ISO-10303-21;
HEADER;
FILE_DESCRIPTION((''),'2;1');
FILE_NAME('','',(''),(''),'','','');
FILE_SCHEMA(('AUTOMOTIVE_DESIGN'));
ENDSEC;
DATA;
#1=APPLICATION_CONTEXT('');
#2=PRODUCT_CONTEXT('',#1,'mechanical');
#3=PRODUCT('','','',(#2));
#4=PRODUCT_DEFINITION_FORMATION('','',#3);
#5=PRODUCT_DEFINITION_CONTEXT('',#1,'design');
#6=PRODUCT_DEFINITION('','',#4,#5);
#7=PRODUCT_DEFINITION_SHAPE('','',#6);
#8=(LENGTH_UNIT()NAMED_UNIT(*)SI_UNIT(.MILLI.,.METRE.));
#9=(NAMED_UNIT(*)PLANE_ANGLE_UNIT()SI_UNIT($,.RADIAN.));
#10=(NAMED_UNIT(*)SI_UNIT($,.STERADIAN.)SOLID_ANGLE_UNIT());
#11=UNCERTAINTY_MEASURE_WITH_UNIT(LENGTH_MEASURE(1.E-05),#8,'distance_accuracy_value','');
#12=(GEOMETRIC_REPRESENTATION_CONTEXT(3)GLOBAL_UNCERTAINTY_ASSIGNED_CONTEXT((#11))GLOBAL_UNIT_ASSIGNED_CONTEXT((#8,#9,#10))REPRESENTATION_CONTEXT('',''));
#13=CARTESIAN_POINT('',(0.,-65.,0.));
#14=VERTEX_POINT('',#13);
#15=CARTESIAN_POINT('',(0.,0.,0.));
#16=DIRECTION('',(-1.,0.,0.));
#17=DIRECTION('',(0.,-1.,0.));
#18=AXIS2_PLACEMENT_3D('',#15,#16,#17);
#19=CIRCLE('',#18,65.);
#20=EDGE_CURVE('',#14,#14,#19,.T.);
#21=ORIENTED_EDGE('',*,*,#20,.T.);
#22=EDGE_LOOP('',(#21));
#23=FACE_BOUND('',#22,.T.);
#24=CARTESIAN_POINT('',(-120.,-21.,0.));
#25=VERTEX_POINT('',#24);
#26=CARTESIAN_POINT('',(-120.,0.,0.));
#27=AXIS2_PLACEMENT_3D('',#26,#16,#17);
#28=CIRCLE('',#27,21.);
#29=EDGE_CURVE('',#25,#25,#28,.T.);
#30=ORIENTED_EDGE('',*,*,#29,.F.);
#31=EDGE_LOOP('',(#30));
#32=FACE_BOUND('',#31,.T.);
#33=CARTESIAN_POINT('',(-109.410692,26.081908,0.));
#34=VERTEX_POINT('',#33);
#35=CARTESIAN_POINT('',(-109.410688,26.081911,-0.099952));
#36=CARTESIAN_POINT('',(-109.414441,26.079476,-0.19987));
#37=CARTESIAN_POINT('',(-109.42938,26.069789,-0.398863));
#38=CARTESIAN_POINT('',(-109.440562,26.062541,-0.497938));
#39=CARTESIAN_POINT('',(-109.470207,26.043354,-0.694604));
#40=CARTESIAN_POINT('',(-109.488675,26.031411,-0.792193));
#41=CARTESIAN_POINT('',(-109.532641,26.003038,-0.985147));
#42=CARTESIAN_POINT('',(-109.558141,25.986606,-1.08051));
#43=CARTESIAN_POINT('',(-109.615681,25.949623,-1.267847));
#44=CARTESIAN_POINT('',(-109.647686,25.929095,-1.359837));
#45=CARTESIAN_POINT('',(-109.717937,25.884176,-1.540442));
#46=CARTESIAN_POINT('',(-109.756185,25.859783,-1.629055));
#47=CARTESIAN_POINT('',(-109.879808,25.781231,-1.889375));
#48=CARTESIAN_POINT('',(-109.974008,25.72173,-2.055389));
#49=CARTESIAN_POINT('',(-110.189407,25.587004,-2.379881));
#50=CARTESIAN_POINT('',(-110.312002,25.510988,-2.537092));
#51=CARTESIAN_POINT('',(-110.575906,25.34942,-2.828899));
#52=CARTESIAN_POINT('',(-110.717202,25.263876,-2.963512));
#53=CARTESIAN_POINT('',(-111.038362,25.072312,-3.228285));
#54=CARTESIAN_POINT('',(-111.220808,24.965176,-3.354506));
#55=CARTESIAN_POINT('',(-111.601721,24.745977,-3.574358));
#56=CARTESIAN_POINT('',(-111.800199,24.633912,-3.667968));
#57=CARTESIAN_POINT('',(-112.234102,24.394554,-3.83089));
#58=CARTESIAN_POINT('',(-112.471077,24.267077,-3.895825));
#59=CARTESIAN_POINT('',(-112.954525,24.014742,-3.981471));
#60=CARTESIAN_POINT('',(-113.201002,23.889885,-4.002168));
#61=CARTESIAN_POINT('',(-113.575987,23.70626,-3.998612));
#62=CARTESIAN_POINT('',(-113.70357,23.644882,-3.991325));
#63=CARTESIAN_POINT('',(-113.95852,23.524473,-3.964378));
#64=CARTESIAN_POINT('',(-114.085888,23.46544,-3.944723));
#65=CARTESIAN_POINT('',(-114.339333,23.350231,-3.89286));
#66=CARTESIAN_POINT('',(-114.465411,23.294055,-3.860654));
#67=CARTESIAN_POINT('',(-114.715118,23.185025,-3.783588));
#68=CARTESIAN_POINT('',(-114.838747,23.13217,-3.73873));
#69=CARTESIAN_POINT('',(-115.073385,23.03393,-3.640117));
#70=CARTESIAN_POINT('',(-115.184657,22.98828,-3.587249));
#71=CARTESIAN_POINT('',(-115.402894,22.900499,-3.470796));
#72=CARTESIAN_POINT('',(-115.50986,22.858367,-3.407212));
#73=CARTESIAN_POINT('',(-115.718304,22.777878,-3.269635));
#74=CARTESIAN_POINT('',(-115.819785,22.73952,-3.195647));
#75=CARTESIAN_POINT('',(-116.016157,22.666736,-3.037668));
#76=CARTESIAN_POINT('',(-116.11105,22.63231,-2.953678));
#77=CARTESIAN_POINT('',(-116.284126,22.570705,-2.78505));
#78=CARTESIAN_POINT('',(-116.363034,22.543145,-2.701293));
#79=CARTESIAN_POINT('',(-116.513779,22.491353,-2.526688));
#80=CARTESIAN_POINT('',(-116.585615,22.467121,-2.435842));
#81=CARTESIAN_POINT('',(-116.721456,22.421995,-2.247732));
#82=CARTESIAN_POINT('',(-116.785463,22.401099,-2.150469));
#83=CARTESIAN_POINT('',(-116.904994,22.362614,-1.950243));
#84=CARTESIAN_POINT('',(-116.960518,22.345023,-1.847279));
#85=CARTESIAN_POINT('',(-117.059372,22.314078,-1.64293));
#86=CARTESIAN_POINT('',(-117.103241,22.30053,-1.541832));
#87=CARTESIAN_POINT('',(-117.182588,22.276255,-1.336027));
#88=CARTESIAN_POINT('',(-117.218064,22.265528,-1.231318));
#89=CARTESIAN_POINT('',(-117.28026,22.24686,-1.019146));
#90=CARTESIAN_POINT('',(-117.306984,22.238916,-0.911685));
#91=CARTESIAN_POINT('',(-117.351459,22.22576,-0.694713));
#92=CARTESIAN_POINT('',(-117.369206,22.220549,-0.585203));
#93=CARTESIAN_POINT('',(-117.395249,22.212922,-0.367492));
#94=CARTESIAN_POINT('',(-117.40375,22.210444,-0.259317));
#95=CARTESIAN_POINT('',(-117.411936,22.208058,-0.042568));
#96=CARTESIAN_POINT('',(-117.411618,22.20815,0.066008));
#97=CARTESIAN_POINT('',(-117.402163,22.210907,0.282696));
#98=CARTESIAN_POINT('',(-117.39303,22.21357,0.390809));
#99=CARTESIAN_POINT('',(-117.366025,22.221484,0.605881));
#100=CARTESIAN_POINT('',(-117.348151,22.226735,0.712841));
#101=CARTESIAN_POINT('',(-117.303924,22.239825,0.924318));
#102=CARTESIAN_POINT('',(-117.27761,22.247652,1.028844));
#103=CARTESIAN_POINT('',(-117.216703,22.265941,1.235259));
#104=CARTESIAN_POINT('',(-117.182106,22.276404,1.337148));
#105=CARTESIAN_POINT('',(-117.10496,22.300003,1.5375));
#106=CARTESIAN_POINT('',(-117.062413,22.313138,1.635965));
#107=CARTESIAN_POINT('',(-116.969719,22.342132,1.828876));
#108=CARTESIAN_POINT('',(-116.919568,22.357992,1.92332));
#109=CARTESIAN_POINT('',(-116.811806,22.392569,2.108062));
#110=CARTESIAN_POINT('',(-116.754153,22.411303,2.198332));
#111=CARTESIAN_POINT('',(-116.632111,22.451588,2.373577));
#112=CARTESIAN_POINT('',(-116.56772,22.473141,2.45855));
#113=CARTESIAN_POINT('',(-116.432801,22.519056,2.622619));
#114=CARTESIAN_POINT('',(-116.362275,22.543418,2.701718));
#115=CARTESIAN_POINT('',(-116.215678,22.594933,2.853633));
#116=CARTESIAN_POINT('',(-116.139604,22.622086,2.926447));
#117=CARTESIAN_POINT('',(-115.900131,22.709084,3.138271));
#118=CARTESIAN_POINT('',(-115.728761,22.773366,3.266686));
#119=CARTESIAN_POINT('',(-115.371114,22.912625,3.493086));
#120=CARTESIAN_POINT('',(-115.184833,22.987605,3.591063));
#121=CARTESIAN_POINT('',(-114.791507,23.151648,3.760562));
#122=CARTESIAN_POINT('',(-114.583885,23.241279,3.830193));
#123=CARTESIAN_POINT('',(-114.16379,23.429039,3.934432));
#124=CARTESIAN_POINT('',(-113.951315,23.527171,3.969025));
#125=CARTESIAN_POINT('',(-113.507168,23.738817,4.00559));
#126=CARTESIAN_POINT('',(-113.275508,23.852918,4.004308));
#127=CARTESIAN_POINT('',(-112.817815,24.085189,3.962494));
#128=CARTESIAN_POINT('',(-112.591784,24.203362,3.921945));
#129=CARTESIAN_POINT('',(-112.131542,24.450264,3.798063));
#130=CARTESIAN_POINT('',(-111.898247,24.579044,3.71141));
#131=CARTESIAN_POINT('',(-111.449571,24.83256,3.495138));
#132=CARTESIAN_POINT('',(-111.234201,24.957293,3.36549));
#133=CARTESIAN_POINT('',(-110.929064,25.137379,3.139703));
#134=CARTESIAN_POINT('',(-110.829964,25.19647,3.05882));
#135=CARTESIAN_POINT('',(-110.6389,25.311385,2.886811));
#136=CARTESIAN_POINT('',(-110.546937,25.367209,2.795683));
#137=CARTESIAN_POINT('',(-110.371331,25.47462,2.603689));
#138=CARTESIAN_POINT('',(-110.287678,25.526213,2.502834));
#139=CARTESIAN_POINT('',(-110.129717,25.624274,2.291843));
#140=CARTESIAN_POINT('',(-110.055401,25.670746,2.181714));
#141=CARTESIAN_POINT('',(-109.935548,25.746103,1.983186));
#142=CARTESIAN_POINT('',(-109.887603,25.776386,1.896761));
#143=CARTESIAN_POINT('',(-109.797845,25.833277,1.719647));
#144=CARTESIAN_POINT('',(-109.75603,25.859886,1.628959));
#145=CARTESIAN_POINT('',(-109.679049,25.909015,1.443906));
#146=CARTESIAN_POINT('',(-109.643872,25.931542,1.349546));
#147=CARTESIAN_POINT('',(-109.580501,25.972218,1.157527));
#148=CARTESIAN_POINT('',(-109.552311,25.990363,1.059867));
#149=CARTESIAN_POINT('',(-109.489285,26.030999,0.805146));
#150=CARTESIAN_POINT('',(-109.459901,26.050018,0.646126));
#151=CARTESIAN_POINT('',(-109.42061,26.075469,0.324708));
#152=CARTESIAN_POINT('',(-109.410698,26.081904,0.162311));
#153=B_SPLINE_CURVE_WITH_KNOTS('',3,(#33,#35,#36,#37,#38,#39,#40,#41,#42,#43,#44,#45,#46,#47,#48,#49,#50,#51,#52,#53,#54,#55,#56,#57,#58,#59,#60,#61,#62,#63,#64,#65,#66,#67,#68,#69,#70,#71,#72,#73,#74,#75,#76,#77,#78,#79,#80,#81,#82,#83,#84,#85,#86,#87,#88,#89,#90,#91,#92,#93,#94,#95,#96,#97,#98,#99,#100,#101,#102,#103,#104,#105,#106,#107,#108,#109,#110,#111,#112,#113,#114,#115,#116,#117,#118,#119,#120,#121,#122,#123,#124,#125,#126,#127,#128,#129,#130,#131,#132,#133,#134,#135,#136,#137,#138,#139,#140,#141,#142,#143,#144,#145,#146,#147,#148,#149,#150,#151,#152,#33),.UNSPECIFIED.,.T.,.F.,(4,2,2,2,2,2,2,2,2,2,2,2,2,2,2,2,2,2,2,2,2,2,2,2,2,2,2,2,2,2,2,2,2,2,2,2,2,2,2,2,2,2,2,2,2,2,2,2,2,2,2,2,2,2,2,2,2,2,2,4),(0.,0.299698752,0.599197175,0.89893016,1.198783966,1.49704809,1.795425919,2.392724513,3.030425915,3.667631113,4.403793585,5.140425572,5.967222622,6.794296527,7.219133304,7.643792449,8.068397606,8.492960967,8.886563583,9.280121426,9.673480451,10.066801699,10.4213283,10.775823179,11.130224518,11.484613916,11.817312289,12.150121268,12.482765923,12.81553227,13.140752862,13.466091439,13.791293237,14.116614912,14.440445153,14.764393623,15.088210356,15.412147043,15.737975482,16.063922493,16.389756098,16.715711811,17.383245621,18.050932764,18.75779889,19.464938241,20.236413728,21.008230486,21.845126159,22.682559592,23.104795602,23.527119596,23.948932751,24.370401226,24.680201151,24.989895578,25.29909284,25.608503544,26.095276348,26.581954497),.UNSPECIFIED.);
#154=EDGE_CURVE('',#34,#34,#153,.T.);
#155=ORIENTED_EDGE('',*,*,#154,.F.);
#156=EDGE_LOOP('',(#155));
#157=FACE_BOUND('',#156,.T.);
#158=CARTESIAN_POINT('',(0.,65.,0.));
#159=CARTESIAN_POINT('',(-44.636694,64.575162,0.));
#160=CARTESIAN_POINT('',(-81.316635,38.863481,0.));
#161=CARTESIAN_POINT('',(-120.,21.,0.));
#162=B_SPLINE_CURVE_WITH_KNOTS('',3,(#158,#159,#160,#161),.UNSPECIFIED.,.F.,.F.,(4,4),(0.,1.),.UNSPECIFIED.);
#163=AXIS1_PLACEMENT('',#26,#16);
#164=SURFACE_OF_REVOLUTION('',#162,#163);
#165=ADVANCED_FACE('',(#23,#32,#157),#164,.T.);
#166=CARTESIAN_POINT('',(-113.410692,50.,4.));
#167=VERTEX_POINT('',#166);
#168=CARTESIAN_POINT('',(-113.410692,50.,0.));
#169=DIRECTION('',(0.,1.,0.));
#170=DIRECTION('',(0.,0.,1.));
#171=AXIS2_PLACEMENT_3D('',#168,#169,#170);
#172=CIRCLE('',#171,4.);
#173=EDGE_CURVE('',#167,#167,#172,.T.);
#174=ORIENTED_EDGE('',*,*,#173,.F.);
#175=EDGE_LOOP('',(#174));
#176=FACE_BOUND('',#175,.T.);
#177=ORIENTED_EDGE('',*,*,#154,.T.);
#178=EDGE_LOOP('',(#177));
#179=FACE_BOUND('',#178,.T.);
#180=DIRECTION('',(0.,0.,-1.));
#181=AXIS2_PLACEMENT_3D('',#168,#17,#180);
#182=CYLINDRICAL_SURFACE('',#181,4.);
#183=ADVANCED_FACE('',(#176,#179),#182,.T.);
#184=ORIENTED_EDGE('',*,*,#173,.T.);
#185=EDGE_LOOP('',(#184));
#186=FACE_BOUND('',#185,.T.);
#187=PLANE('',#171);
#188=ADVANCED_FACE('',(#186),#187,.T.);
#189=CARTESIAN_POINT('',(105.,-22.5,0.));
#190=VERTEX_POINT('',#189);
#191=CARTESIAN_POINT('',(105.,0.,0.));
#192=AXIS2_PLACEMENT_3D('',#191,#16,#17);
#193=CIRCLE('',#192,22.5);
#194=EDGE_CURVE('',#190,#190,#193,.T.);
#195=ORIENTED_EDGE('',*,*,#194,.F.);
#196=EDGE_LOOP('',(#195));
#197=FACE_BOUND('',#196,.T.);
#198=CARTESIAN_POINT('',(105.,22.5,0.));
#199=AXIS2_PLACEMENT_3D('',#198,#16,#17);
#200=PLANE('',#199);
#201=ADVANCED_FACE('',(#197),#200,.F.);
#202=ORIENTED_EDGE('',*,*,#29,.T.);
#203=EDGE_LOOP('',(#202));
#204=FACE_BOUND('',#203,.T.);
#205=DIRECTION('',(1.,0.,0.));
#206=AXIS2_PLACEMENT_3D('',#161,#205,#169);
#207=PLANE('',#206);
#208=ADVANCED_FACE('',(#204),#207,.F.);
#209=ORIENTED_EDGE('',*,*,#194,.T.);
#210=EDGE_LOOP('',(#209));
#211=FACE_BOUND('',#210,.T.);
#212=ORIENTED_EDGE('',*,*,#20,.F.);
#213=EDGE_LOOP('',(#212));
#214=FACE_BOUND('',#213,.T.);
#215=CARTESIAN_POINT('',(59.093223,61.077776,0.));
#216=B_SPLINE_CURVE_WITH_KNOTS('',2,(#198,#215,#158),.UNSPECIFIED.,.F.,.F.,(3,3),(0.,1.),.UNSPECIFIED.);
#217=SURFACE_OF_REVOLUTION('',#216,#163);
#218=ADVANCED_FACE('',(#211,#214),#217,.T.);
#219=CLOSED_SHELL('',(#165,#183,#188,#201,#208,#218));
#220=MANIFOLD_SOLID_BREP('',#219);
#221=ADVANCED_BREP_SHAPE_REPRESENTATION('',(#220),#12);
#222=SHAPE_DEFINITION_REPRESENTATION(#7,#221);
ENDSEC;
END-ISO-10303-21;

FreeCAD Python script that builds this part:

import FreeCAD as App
import Part
import Sketcher
from FreeCAD import Vector

doc = App.newDocument("Part")
params = doc.addObject("Spreadsheet::Sheet", "Params")
for row, (alias, value) in enumerate([
    ("revolution_angle", "360 deg"),
    ("sketch2_diameter", "8 mm"),
    ("pad1_length", "50 mm"),
], start=1):
    params.set(f"A{row}", alias)
    params.set(f"B{row}", "=" + value)
    params.setAlias(f"B{row}", alias)

body = doc.addObject("PartDesign::Body", "Body")

sketch1 = body.newObject("Sketcher::SketchObject", "Sketch")
sketch1.AttachmentSupport = (doc.getObject("XY_Plane"), [""])
sketch1.MapMode = "FlatFace"
sketch1.addGeometry(Part.LineSegment(Vector(105, 0, 0), Vector(105, 22.5, 0)), False)
sketch1.addGeometry(Part.BSplineCurve([Vector(0, 65, 0), Vector(59.093223, 61.077776, 0), Vector(105, 22.5, 0)], [3, 3], [0, 1], False, 2, [1, 1, 1], False), False)
sketch1.addGeometry(Part.BSplineCurve([Vector(-120, 21, 0), Vector(-81.316635, 38.863481, 0), Vector(-44.636694, 64.575162, 0), Vector(0, 65, 0)], [4, 4], [0, 1], False, 3, [1, 1, 1, 1], False), False)
sketch1.addGeometry(Part.LineSegment(Vector(-120, 21, 0), Vector(-120, 0, 0)), False)
sketch1.addGeometry(Part.LineSegment(Vector(-120, 0, 0), Vector(105, 0, 0)), False)
sketch1.addConstraint(Sketcher.Constraint("Block", 1))
sketch1.addConstraint(Sketcher.Constraint("Block", 2))
sketch1.addConstraint(Sketcher.Constraint("Coincident", 0, 2, 1, 2))
sketch1.addConstraint(Sketcher.Constraint("Coincident", 2, 1, 3, 1))
sketch1.addConstraint(Sketcher.Constraint("Coincident", 3, 2, 4, 1))
sketch1.addConstraint(Sketcher.Constraint("Coincident", 4, 2, 0, 1))
sketch1.addConstraint(Sketcher.Constraint("Vertical", 0))
sketch1.addConstraint(Sketcher.Constraint("Vertical", 3))
sketch1.addConstraint(Sketcher.Constraint("Horizontal", 4))
sketch1.addConstraint(Sketcher.Constraint("PointOnObject", 3, 2, -1))
revolution = body.newObject("PartDesign::Revolution", "Revolution")
revolution.Profile = sketch1
revolution.ReferenceAxis = (sketch1, ["H_Axis"])
revolution.setExpression("Angle", "Params.revolution_angle")

sketch2 = body.newObject("Sketcher::SketchObject", "Sketch001")
sketch2.AttachmentSupport = (doc.getObject("XZ_Plane"), [""])
sketch2.MapMode = "FlatFace"
sketch2.addGeometry(Part.Circle(Vector(-113.4, 0, 0), Vector(0, 0, 1), 4), False)
sketch2.addConstraint(Sketcher.Constraint("PointOnObject", 0, 3, -1))
sketch2.addConstraint(Sketcher.Constraint("Diameter", 0, 8.0))
sketch2.addConstraint(Sketcher.Constraint("DistanceX", 0, 3, -1, 1, 113.410692))
sketch2.setExpression("Constraints[1]", "Params.sketch2_diameter")
pad1 = body.newObject("PartDesign::Pad", "Pad")
pad1.Profile = sketch2
pad1.setExpression("Length", "Params.pad1_length")
pad1.Reversed = True

doc.recompute()
